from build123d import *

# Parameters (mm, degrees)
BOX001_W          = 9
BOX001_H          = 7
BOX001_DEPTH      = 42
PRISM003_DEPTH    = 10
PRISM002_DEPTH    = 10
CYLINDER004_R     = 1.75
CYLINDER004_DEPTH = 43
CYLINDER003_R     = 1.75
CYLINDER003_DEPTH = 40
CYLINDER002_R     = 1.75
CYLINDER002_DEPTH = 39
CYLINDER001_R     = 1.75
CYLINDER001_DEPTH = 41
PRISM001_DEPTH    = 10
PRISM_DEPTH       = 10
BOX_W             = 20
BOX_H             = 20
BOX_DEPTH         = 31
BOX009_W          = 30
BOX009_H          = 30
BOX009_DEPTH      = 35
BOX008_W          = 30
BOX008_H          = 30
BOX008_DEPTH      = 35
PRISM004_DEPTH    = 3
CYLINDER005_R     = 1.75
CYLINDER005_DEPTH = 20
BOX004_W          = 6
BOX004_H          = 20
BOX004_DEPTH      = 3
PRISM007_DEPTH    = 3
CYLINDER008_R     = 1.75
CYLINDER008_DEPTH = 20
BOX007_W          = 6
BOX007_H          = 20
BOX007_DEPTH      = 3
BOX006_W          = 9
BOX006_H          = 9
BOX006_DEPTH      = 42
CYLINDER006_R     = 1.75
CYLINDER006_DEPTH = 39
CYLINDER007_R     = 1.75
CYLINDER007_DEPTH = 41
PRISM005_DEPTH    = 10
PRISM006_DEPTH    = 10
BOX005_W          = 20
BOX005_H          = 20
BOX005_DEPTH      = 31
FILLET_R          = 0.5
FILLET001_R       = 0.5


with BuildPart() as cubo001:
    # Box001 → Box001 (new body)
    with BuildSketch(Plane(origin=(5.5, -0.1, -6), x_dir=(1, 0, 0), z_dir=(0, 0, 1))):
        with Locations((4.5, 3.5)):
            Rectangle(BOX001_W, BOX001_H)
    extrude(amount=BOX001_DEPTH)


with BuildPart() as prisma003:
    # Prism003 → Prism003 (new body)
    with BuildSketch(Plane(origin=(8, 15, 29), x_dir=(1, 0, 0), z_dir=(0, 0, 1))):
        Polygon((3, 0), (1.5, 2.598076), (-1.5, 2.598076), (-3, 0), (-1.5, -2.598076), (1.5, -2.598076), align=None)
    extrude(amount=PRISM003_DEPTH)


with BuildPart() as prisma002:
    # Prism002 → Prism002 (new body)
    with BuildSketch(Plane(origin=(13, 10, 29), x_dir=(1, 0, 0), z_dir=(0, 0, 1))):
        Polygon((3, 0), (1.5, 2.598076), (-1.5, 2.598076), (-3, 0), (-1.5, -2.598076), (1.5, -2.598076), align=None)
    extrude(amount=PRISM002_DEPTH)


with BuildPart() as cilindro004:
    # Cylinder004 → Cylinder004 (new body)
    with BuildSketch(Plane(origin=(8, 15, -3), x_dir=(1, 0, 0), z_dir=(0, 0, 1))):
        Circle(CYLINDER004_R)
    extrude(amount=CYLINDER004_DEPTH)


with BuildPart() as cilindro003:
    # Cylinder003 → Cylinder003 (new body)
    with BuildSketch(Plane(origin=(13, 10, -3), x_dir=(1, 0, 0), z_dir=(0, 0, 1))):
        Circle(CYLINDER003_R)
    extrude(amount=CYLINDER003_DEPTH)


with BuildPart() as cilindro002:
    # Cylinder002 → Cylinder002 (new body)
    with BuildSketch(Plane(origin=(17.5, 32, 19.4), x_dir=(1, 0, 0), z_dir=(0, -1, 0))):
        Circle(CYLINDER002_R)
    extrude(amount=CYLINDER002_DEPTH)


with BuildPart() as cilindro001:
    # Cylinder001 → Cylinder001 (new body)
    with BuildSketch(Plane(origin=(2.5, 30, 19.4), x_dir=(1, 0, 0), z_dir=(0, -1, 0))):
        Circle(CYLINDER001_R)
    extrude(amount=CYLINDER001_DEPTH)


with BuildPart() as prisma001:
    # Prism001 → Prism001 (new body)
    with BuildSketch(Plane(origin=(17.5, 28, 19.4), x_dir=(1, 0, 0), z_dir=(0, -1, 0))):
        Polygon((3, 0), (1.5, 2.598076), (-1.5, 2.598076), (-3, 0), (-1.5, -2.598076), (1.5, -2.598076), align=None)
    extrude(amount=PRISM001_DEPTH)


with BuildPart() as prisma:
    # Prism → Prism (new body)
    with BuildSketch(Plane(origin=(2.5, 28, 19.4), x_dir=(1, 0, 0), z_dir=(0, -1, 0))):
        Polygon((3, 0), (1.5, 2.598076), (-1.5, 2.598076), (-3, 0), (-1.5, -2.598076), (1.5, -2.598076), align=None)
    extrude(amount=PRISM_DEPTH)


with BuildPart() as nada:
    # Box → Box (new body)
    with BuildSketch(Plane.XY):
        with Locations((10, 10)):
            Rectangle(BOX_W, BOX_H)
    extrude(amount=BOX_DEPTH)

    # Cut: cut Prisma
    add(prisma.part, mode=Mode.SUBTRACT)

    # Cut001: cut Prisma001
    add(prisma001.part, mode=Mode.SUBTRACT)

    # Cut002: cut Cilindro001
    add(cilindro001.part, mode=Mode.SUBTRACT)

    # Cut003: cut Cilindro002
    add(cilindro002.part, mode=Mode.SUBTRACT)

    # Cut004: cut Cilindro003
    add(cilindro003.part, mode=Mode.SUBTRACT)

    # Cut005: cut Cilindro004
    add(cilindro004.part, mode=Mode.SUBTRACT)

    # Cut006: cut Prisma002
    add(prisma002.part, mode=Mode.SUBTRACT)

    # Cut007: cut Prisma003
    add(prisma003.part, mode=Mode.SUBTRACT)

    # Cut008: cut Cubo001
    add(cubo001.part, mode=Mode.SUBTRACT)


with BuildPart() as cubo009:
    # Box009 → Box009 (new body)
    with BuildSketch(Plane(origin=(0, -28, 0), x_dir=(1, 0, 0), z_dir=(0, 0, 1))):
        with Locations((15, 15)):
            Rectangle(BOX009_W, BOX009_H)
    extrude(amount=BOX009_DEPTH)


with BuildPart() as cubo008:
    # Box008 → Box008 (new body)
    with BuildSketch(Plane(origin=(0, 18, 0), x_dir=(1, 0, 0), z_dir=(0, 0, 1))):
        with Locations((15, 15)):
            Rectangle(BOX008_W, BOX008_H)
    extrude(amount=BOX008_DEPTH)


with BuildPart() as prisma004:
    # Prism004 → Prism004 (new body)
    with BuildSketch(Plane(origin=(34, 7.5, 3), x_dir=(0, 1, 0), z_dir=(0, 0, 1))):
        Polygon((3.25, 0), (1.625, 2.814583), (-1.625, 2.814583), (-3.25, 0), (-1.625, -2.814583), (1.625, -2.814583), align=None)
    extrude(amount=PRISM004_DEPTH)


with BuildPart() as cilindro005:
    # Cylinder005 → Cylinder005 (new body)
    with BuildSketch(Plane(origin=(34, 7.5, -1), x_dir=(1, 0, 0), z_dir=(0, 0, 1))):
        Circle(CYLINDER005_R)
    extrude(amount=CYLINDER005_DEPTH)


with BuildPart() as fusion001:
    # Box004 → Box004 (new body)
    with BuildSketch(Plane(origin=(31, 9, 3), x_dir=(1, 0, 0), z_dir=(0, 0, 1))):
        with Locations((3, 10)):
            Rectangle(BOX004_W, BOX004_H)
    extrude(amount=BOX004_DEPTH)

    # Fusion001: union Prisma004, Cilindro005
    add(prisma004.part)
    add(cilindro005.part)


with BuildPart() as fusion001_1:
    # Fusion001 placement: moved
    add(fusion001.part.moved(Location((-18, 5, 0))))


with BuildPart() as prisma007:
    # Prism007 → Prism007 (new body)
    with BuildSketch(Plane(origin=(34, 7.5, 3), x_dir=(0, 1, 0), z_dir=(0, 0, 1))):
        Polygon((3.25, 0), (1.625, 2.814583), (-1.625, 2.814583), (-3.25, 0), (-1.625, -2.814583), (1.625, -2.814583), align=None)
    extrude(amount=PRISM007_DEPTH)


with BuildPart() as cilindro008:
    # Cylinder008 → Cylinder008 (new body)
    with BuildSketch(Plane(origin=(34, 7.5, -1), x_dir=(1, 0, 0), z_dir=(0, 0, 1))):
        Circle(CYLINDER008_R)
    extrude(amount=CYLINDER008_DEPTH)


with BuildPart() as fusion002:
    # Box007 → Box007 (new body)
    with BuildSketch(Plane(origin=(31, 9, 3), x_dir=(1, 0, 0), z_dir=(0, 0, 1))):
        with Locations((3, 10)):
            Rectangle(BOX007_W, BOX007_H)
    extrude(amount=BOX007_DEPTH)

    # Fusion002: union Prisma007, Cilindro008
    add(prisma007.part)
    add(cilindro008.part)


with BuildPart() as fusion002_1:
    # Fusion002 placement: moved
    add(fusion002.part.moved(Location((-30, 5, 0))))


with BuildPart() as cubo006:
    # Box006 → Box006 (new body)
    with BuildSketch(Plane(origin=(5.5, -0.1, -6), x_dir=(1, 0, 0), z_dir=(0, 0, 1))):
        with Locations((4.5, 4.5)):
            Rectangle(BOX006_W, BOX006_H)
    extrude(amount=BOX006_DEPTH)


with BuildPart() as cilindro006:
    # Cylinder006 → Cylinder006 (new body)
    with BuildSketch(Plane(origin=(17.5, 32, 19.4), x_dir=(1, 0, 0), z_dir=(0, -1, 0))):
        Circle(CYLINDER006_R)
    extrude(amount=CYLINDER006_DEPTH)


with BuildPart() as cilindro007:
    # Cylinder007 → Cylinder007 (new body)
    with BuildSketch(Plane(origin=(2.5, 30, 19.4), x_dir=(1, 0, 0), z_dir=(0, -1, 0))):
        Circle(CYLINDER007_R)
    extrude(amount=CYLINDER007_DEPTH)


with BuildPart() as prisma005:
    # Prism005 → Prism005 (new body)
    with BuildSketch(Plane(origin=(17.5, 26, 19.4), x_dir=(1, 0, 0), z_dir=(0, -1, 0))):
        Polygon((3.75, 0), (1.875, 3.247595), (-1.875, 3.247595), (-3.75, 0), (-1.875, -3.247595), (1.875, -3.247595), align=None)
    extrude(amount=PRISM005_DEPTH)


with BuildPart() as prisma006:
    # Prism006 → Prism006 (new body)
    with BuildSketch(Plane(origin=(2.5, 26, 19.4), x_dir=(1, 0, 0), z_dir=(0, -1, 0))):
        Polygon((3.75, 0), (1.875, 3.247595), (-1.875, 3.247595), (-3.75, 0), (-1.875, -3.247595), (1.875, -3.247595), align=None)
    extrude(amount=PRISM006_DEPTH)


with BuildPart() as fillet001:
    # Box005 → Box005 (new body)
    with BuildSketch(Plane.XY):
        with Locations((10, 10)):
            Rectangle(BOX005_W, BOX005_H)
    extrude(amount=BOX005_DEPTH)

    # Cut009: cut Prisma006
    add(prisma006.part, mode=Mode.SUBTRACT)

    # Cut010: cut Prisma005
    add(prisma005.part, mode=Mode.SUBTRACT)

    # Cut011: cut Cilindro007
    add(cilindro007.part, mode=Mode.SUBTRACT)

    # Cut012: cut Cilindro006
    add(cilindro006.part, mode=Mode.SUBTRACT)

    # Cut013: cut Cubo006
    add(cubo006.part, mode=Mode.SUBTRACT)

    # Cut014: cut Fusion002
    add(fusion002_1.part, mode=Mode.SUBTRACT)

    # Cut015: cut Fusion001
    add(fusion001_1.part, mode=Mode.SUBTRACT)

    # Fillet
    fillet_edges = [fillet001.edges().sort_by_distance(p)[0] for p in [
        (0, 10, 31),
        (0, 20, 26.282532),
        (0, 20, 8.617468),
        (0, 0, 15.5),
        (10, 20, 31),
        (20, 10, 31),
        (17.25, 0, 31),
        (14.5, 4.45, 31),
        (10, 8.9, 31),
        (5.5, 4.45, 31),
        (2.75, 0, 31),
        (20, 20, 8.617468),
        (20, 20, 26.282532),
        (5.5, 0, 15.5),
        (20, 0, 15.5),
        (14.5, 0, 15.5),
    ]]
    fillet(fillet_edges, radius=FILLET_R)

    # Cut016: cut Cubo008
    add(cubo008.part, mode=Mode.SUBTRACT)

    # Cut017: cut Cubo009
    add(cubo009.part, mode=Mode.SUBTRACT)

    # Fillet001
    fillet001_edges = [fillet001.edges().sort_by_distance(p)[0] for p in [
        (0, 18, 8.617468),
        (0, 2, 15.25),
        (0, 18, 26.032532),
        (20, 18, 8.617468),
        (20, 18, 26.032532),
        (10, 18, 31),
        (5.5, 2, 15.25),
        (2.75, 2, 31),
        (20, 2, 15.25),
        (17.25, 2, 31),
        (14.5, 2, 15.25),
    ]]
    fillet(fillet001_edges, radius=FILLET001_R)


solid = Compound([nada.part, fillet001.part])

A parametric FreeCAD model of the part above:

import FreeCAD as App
import Part
import Sketcher
Q = App.Units.Quantity


def edges_at(feature, points):
    """Names of the edges that pass closest to the given points."""
    edges = feature.Shape.Edges
    near = lambda p: min(range(len(edges)), key=lambda i: edges[i].distToShape(Part.Vertex(*p))[0])
    return sorted({f"Edge{near(p) + 1}" for p in points})


def add_polygon(sketch, points):
    """Adds a closed chain of lines whose ends are joined by coincident constraints."""
    first, n = sketch.GeometryCount, len(points)
    for a, b in zip(points, points[1:] + points[:1]):
        sketch.addGeometry(Part.LineSegment(App.Vector(*a, 0), App.Vector(*b, 0)), False)
    for i in range(n):
        sketch.addConstraint(Sketcher.Constraint("Coincident", first + i, 2, first + (i + 1) % n, 1))

doc = App.newDocument("Part")
body = doc.addObject("PartDesign::Body", "Body")

sketch1 = doc.addObject("Sketcher::SketchObject", "Sketch")
body.addObject(sketch1)
sketch1.AttachmentSupport = (doc.XY_Plane, [""])
sketch1.MapMode = "FlatFace"
sketch1.AttachmentOffset = App.Placement(App.Vector(0, 0, -6), App.Rotation())
add_polygon(sketch1, [(6, 7), (6, 0), (14, 0), (14, 7)])
sketch1.addConstraint(Sketcher.Constraint("Vertical", 0))
sketch1.addConstraint(Sketcher.Constraint("Horizontal", 1))
sketch1.addConstraint(Sketcher.Constraint("Vertical", 2))
sketch1.addConstraint(Sketcher.Constraint("Horizontal", 3))
sketch1.addConstraint(Sketcher.Constraint("DistanceX", 1, 1, 1, 2, Q("9 mm")))
sketch1.addConstraint(Sketcher.Constraint("DistanceY", 0, 2, 0, 1, Q("7 mm")))
sketch1.addConstraint(Sketcher.Constraint("DistanceX", -1, 1, 0, 2, Q("5.5 mm")))
sketch1.addConstraint(Sketcher.Constraint("DistanceY", 0, 2, -1, 1, Q("0.1 mm")))
pad1 = doc.addObject("PartDesign::Pad", "Pad")
body.addObject(pad1)
pad1.Profile = sketch1
pad1.Length = 42
body2 = doc.addObject("PartDesign::Body", "Body001")

sketch2 = doc.addObject("Sketcher::SketchObject", "Sketch001")
body2.addObject(sketch2)
sketch2.AttachmentSupport = (doc.getObject("XY_Plane001"), [""])
sketch2.MapMode = "FlatFace"
sketch2.AttachmentOffset = App.Placement(App.Vector(0, 0, 29), App.Rotation())
add_polygon(sketch2, [(11, 15), (9.5, 17.6), (6.5, 17.6), (5, 15), (6.5, 12.4), (9.5, 12.4)])
sketch2.addConstraint(Sketcher.Constraint("Horizontal", 1))
sketch2.addConstraint(Sketcher.Constraint("Horizontal", 4))
sketch2.addConstraint(Sketcher.Constraint("Parallel", 0, 3))
sketch2.addConstraint(Sketcher.Constraint("Parallel", 2, 5))
sketch2.addConstraint(Sketcher.Constraint("Horizontal", 2, 2, 5, 2))
sketch2.addConstraint(Sketcher.Constraint("Vertical", 1, 2, 3, 2))
sketch2.addConstraint(Sketcher.Constraint("Vertical", 0, 2, 4, 2))
sketch2.addConstraint(Sketcher.Constraint("DistanceX", 1, 2, 1, 1, Q("3 mm")))
sketch2.addConstraint(Sketcher.Constraint("Angle", 0, Q("120.000002 deg")))
sketch2.addConstraint(Sketcher.Constraint("Distance", 0, Q("3 mm")))
sketch2.addConstraint(Sketcher.Constraint("DistanceX", -1, 1, 2, 2, Q("5 mm")))
sketch2.addConstraint(Sketcher.Constraint("DistanceY", -1, 1, 2, 2, Q("15 mm")))
pad2 = doc.addObject("PartDesign::Pad", "Pad001")
body2.addObject(pad2)
pad2.Profile = sketch2
pad2.Length = 10
body3 = doc.addObject("PartDesign::Body", "Body002")

sketch3 = doc.addObject("Sketcher::SketchObject", "Sketch002")
body3.addObject(sketch3)
sketch3.AttachmentSupport = (doc.getObject("XY_Plane002"), [""])
sketch3.MapMode = "FlatFace"
sketch3.AttachmentOffset = App.Placement(App.Vector(0, 0, 29), App.Rotation())
add_polygon(sketch3, [(16, 10), (14.5, 12.6), (11.5, 12.6), (10, 10), (11.5, 7.4), (14.5, 7.4)])
sketch3.addConstraint(Sketcher.Constraint("Horizontal", 1))
sketch3.addConstraint(Sketcher.Constraint("Horizontal", 4))
sketch3.addConstraint(Sketcher.Constraint("Parallel", 0, 3))
sketch3.addConstraint(Sketcher.Constraint("Parallel", 2, 5))
sketch3.addConstraint(Sketcher.Constraint("Horizontal", 2, 2, 5, 2))
sketch3.addConstraint(Sketcher.Constraint("Vertical", 1, 2, 3, 2))
sketch3.addConstraint(Sketcher.Constraint("Vertical", 0, 2, 4, 2))
sketch3.addConstraint(Sketcher.Constraint("DistanceX", 1, 2, 1, 1, Q("3 mm")))
sketch3.addConstraint(Sketcher.Constraint("Angle", 0, Q("120.000002 deg")))
sketch3.addConstraint(Sketcher.Constraint("Distance", 0, Q("3 mm")))
sketch3.addConstraint(Sketcher.Constraint("DistanceX", -1, 1, 2, 2, Q("10 mm")))
sketch3.addConstraint(Sketcher.Constraint("DistanceY", -1, 1, 2, 2, Q("10 mm")))
pad3 = doc.addObject("PartDesign::Pad", "Pad002")
body3.addObject(pad3)
pad3.Profile = sketch3
pad3.Length = 10
body4 = doc.addObject("PartDesign::Body", "Body003")

sketch4 = doc.addObject("Sketcher::SketchObject", "Sketch003")
body4.addObject(sketch4)
sketch4.AttachmentSupport = (doc.getObject("XY_Plane003"), [""])
sketch4.MapMode = "FlatFace"
sketch4.AttachmentOffset = App.Placement(App.Vector(0, 0, -3), App.Rotation())
sketch4.addGeometry(Part.Circle(App.Vector(8, 15, 0), App.Vector(0, 0, 1), 1.8), False)
sketch4.addConstraint(Sketcher.Constraint("Diameter", 0, Q("3.5 mm")))
sketch4.addConstraint(Sketcher.Constraint("DistanceX", -1, 1, 0, 3, Q("8 mm")))
sketch4.addConstraint(Sketcher.Constraint("DistanceY", -1, 1, 0, 3, Q("15 mm")))
pad4 = doc.addObject("PartDesign::Pad", "Pad003")
body4.addObject(pad4)
pad4.Profile = sketch4
pad4.Length = 43
body5 = doc.addObject("PartDesign::Body", "Body004")

sketch5 = doc.addObject("Sketcher::SketchObject", "Sketch004")
body5.addObject(sketch5)
sketch5.AttachmentSupport = (doc.getObject("XY_Plane004"), [""])
sketch5.MapMode = "FlatFace"
sketch5.AttachmentOffset = App.Placement(App.Vector(0, 0, -3), App.Rotation())
sketch5.addGeometry(Part.Circle(App.Vector(13, 10, 0), App.Vector(0, 0, 1), 1.8), False)
sketch5.addConstraint(Sketcher.Constraint("Diameter", 0, Q("3.5 mm")))
sketch5.addConstraint(Sketcher.Constraint("DistanceX", -1, 1, 0, 3, Q("13 mm")))
sketch5.addConstraint(Sketcher.Constraint("DistanceY", -1, 1, 0, 3, Q("10 mm")))
pad5 = doc.addObject("PartDesign::Pad", "Pad004")
body5.addObject(pad5)
pad5.Profile = sketch5
pad5.Length = 40
body6 = doc.addObject("PartDesign::Body", "Body005")

sketch6 = doc.addObject("Sketcher::SketchObject", "Sketch005")
body6.addObject(sketch6)
sketch6.AttachmentSupport = (doc.getObject("XZ_Plane005"), [""])
sketch6.MapMode = "FlatFace"
sketch6.AttachmentOffset = App.Placement(App.Vector(0, 0, -32), App.Rotation())
sketch6.addGeometry(Part.Circle(App.Vector(17.5, 19.4, 0), App.Vector(0, 0, 1), 1.8), False)
sketch6.addConstraint(Sketcher.Constraint("Diameter", 0, Q("3.5 mm")))
sketch6.addConstraint(Sketcher.Constraint("DistanceX", -1, 1, 0, 3, Q("17.5 mm")))
sketch6.addConstraint(Sketcher.Constraint("DistanceY", -1, 1, 0, 3, Q("19.4 mm")))
pad6 = doc.addObject("PartDesign::Pad", "Pad005")
body6.addObject(pad6)
pad6.Profile = sketch6
pad6.Length = 39
body7 = doc.addObject("PartDesign::Body", "Body006")

sketch7 = doc.addObject("Sketcher::SketchObject", "Sketch006")
body7.addObject(sketch7)
sketch7.AttachmentSupport = (doc.getObject("XZ_Plane006"), [""])
sketch7.MapMode = "FlatFace"
sketch7.AttachmentOffset = App.Placement(App.Vector(0, 0, -30), App.Rotation())
sketch7.addGeometry(Part.Circle(App.Vector(2.5, 19.4, 0), App.Vector(0, 0, 1), 1.8), False)
sketch7.addConstraint(Sketcher.Constraint("Diameter", 0, Q("3.5 mm")))
sketch7.addConstraint(Sketcher.Constraint("DistanceX", -1, 1, 0, 3, Q("2.5 mm")))
sketch7.addConstraint(Sketcher.Constraint("DistanceY", -1, 1, 0, 3, Q("19.4 mm")))
pad7 = doc.addObject("PartDesign::Pad", "Pad006")
body7.addObject(pad7)
pad7.Profile = sketch7
pad7.Length = 41
body8 = doc.addObject("PartDesign::Body", "Body007")

sketch8 = doc.addObject("Sketcher::SketchObject", "Sketch007")
body8.addObject(sketch8)
sketch8.AttachmentSupport = (doc.getObject("XZ_Plane007"), [""])
sketch8.MapMode = "FlatFace"
sketch8.AttachmentOffset = App.Placement(App.Vector(0, 0, -28), App.Rotation())
add_polygon(sketch8, [(20.5, 19.4), (19, 22), (16, 22), (14.5, 19.4), (16, 16.8), (19, 16.8)])
sketch8.addConstraint(Sketcher.Constraint("Horizontal", 1))
sketch8.addConstraint(Sketcher.Constraint("Horizontal", 4))
sketch8.addConstraint(Sketcher.Constraint("Parallel", 0, 3))
sketch8.addConstraint(Sketcher.Constraint("Parallel", 2, 5))
sketch8.addConstraint(Sketcher.Constraint("Horizontal", 2, 2, 5, 2))
sketch8.addConstraint(Sketcher.Constraint("Vertical", 1, 2, 3, 2))
sketch8.addConstraint(Sketcher.Constraint("Vertical", 0, 2, 4, 2))
sketch8.addConstraint(Sketcher.Constraint("DistanceX", 1, 2, 1, 1, Q("3 mm")))
sketch8.addConstraint(Sketcher.Constraint("Angle", 0, Q("120.000002 deg")))
sketch8.addConstraint(Sketcher.Constraint("Distance", 0, Q("3 mm")))
sketch8.addConstraint(Sketcher.Constraint("DistanceX", -1, 1, 0, 2, Q("19 mm")))
sketch8.addConstraint(Sketcher.Constraint("DistanceY", -1, 1, 2, 2, Q("19.4 mm")))
pad8 = doc.addObject("PartDesign::Pad", "Pad007")
body8.addObject(pad8)
pad8.Profile = sketch8
pad8.Length = 10
body9 = doc.addObject("PartDesign::Body", "Body008")

sketch9 = doc.addObject("Sketcher::SketchObject", "Sketch008")
body9.addObject(sketch9)
sketch9.AttachmentSupport = (doc.getObject("XZ_Plane008"), [""])
sketch9.MapMode = "FlatFace"
sketch9.AttachmentOffset = App.Placement(App.Vector(0, 0, -28), App.Rotation())
add_polygon(sketch9, [(5.5, 19.4), (4, 22), (1, 22), (-0.5, 19.4), (1, 16.8), (4, 16.8)])
sketch9.addConstraint(Sketcher.Constraint("Horizontal", 1))
sketch9.addConstraint(Sketcher.Constraint("Horizontal", 4))
sketch9.addConstraint(Sketcher.Constraint("Parallel", 0, 3))
sketch9.addConstraint(Sketcher.Constraint("Parallel", 2, 5))
sketch9.addConstraint(Sketcher.Constraint("Horizontal", 2, 2, 5, 2))
sketch9.addConstraint(Sketcher.Constraint("Vertical", 1, 2, 3, 2))
sketch9.addConstraint(Sketcher.Constraint("Vertical", 0, 2, 4, 2))
sketch9.addConstraint(Sketcher.Constraint("DistanceX", 1, 2, 1, 1, Q("3 mm")))
sketch9.addConstraint(Sketcher.Constraint("Angle", 0, Q("120.000002 deg")))
sketch9.addConstraint(Sketcher.Constraint("Distance", 0, Q("3 mm")))
sketch9.addConstraint(Sketcher.Constraint("DistanceX", -1, 1, 0, 2, Q("4 mm")))
sketch9.addConstraint(Sketcher.Constraint("DistanceY", -1, 1, 2, 2, Q("19.4 mm")))
pad9 = doc.addObject("PartDesign::Pad", "Pad008")
body9.addObject(pad9)
pad9.Profile = sketch9
pad9.Length = 10
body10 = doc.addObject("PartDesign::Body", "Body009")

sketch10 = doc.addObject("Sketcher::SketchObject", "Sketch009")
body10.addObject(sketch10)
sketch10.AttachmentSupport = (doc.getObject("XY_Plane009"), [""])
sketch10.MapMode = "FlatFace"
add_polygon(sketch10, [(0, 20), (0, 0), (20, 0), (20, 20)])
sketch10.addConstraint(Sketcher.Constraint("Vertical", 0))
sketch10.addConstraint(Sketcher.Constraint("Horizontal", 1))
sketch10.addConstraint(Sketcher.Constraint("Vertical", 2))
sketch10.addConstraint(Sketcher.Constraint("Horizontal", 3))
sketch10.addConstraint(Sketcher.Constraint("Coincident", 0, 2, -1, 1))
sketch10.addConstraint(Sketcher.Constraint("Equal", 3, 0))
sketch10.addConstraint(Sketcher.Constraint("DistanceX", 1, 1, 1, 2, Q("20 mm")))
pad10 = doc.addObject("PartDesign::Pad", "Pad009")
body10.addObject(pad10)
pad10.Profile = sketch10
pad10.Length = 31
doc.recompute()

boolean = doc.addObject("PartDesign::Boolean", "Boolean")
body10.addObject(boolean)
boolean.Type = "Cut"
boolean.addObjects([body9])
doc.recompute()

boolean2 = doc.addObject("PartDesign::Boolean", "Boolean001")
body10.addObject(boolean2)
boolean2.Type = "Cut"
boolean2.addObjects([body8])
doc.recompute()

boolean3 = doc.addObject("PartDesign::Boolean", "Boolean002")
body10.addObject(boolean3)
boolean3.Type = "Cut"
boolean3.addObjects([body7])
doc.recompute()

boolean4 = doc.addObject("PartDesign::Boolean", "Boolean003")
body10.addObject(boolean4)
boolean4.Type = "Cut"
boolean4.addObjects([body6])
doc.recompute()

boolean5 = doc.addObject("PartDesign::Boolean", "Boolean004")
body10.addObject(boolean5)
boolean5.Type = "Cut"
boolean5.addObjects([body5])
doc.recompute()

boolean6 = doc.addObject("PartDesign::Boolean", "Boolean005")
body10.addObject(boolean6)
boolean6.Type = "Cut"
boolean6.addObjects([body4])
doc.recompute()

boolean7 = doc.addObject("PartDesign::Boolean", "Boolean006")
body10.addObject(boolean7)
boolean7.Type = "Cut"
boolean7.addObjects([body3])
doc.recompute()

boolean8 = doc.addObject("PartDesign::Boolean", "Boolean007")
body10.addObject(boolean8)
boolean8.Type = "Cut"
boolean8.addObjects([body2])
doc.recompute()

boolean9 = doc.addObject("PartDesign::Boolean", "Boolean008")
body10.addObject(boolean9)
boolean9.Type = "Cut"
boolean9.addObjects([body])
body11 = doc.addObject("PartDesign::Body", "Body010")

sketch11 = doc.addObject("Sketcher::SketchObject", "Sketch010")
body11.addObject(sketch11)
sketch11.AttachmentSupport = (doc.getObject("XY_Plane010"), [""])
sketch11.MapMode = "FlatFace"
add_polygon(sketch11, [(0, 2), (0, -28), (30, -28), (30, 2)])
sketch11.addConstraint(Sketcher.Constraint("Vertical", 0))
sketch11.addConstraint(Sketcher.Constraint("Horizontal", 1))
sketch11.addConstraint(Sketcher.Constraint("Vertical", 2))
sketch11.addConstraint(Sketcher.Constraint("Horizontal", 3))
sketch11.addConstraint(Sketcher.Constraint("PointOnObject", 0, 2, -2))
sketch11.addConstraint(Sketcher.Constraint("Equal", 3, 0))
sketch11.addConstraint(Sketcher.Constraint("DistanceX", 1, 1, 1, 2, Q("30 mm")))
sketch11.addConstraint(Sketcher.Constraint("DistanceY", 0, 2, -1, 1, Q("28 mm")))
pad11 = doc.addObject("PartDesign::Pad", "Pad010")
body11.addObject(pad11)
pad11.Profile = sketch11
pad11.Length = 35
body12 = doc.addObject("PartDesign::Body", "Body011")

sketch12 = doc.addObject("Sketcher::SketchObject", "Sketch011")
body12.addObject(sketch12)
sketch12.AttachmentSupport = (doc.getObject("XY_Plane011"), [""])
sketch12.MapMode = "FlatFace"
add_polygon(sketch12, [(0, 48), (0, 18), (30, 18), (30, 48)])
sketch12.addConstraint(Sketcher.Constraint("Vertical", 0))
sketch12.addConstraint(Sketcher.Constraint("Horizontal", 1))
sketch12.addConstraint(Sketcher.Constraint("Vertical", 2))
sketch12.addConstraint(Sketcher.Constraint("Horizontal", 3))
sketch12.addConstraint(Sketcher.Constraint("PointOnObject", 0, 2, -2))
sketch12.addConstraint(Sketcher.Constraint("Equal", 3, 0))
sketch12.addConstraint(Sketcher.Constraint("DistanceX", 1, 1, 1, 2, Q("30 mm")))
sketch12.addConstraint(Sketcher.Constraint("DistanceY", -1, 1, 0, 2, Q("18 mm")))
pad12 = doc.addObject("PartDesign::Pad", "Pad011")
body12.addObject(pad12)
pad12.Profile = sketch12
pad12.Length = 35
body13 = doc.addObject("PartDesign::Body", "Body012")

sketch13 = doc.addObject("Sketcher::SketchObject", "Sketch012")
body13.addObject(sketch13)
sketch13.AttachmentSupport = (doc.getObject("XY_Plane012"), [""])
sketch13.MapMode = "FlatFace"
sketch13.AttachmentOffset = App.Placement(App.Vector(0, 0, 3), App.Rotation())
add_polygon(sketch13, [(34, 10.8), (31.2, 9.1), (31.2, 5.9), (34, 4.2), (36.8, 5.9), (36.8, 9.1)])
sketch13.addConstraint(Sketcher.Constraint("Vertical", 1))
sketch13.addConstraint(Sketcher.Constraint("Vertical", 4))
sketch13.addConstraint(Sketcher.Constraint("Parallel", 0, 3))
sketch13.addConstraint(Sketcher.Constraint("Parallel", 2, 5))
sketch13.addConstraint(Sketcher.Constraint("Horizontal", 1, 2, 3, 2))
sketch13.addConstraint(Sketcher.Constraint("Horizontal", 0, 2, 4, 2))
sketch13.addConstraint(Sketcher.Constraint("Vertical", 2, 2, 5, 2))
sketch13.addConstraint(Sketcher.Constraint("Angle", 0, Q("-150.000004 deg")))
sketch13.addConstraint(Sketcher.Constraint("DistanceX", -1, 1, 2, 2, Q("34 mm")))
sketch13.addConstraint(Sketcher.Constraint("DistanceY", 1, 2, 1, 1, Q("3.25 mm")))
sketch13.addConstraint(Sketcher.Constraint("DistanceY", 2, 2, 5, 2, Q("6.5 mm")))
sketch13.addConstraint(Sketcher.Constraint("DistanceY", -1, 1, 2, 2, Q("4.25 mm")))
pad13 = doc.addObject("PartDesign::Pad", "Pad012")
body13.addObject(pad13)
pad13.Profile = sketch13
pad13.Length = 3
body14 = doc.addObject("PartDesign::Body", "Body013")

sketch14 = doc.addObject("Sketcher::SketchObject", "Sketch013")
body14.addObject(sketch14)
sketch14.AttachmentSupport = (doc.getObject("XY_Plane013"), [""])
sketch14.MapMode = "FlatFace"
sketch14.AttachmentOffset = App.Placement(App.Vector(0, 0, -1), App.Rotation())
sketch14.addGeometry(Part.Circle(App.Vector(34, 7.5, 0), App.Vector(0, 0, 1), 1.8), False)
sketch14.addConstraint(Sketcher.Constraint("Diameter", 0, Q("3.5 mm")))
sketch14.addConstraint(Sketcher.Constraint("DistanceX", -1, 1, 0, 3, Q("34 mm")))
sketch14.addConstraint(Sketcher.Constraint("DistanceY", -1, 1, 0, 3, Q("7.5 mm")))
pad14 = doc.addObject("PartDesign::Pad", "Pad013")
body14.addObject(pad14)
pad14.Profile = sketch14
pad14.Length = 20
body15 = doc.addObject("PartDesign::Body", "Body014")

sketch15 = doc.addObject("Sketcher::SketchObject", "Sketch014")
body15.addObject(sketch15)
sketch15.AttachmentSupport = (doc.getObject("XY_Plane014"), [""])
sketch15.MapMode = "FlatFace"
sketch15.AttachmentOffset = App.Placement(App.Vector(0, 0, 3), App.Rotation())
add_polygon(sketch15, [(31, 29), (31, 9), (37, 9), (37, 29)])
sketch15.addConstraint(Sketcher.Constraint("Vertical", 0))
sketch15.addConstraint(Sketcher.Constraint("Horizontal", 1))
sketch15.addConstraint(Sketcher.Constraint("Vertical", 2))
sketch15.addConstraint(Sketcher.Constraint("Horizontal", 3))
sketch15.addConstraint(Sketcher.Constraint("DistanceX", 1, 1, 1, 2, Q("6 mm")))
sketch15.addConstraint(Sketcher.Constraint("DistanceY", 0, 2, 0, 1, Q("20 mm")))
sketch15.addConstraint(Sketcher.Constraint("DistanceX", -1, 1, 0, 2, Q("31 mm")))
sketch15.addConstraint(Sketcher.Constraint("DistanceY", -1, 1, 0, 2, Q("9 mm")))
pad15 = doc.addObject("PartDesign::Pad", "Pad014")
body15.addObject(pad15)
pad15.Profile = sketch15
pad15.Length = 3
doc.recompute()

boolean10 = doc.addObject("PartDesign::Boolean", "Boolean009")
body15.addObject(boolean10)
boolean10.Type = "Fuse"
boolean10.addObjects([body13])
doc.recompute()

boolean11 = doc.addObject("PartDesign::Boolean", "Boolean010")
body15.addObject(boolean11)
boolean11.Type = "Fuse"
boolean11.addObjects([body14])
body16 = doc.addObject("PartDesign::Body", "Body015")
doc.recompute()

body15.Placement = App.Placement(App.Vector(-18, 5, 0), App.Rotation(App.Vector(0, 0, 1), 0))
boolean12 = doc.addObject("PartDesign::Boolean", "Boolean011")
body16.addObject(boolean12)
boolean12.Type = "Fuse"
boolean12.addObjects([body15])
body17 = doc.addObject("PartDesign::Body", "Body016")

sketch16 = doc.addObject("Sketcher::SketchObject", "Sketch015")
body17.addObject(sketch16)
sketch16.AttachmentSupport = (doc.getObject("XY_Plane016"), [""])
sketch16.MapMode = "FlatFace"
sketch16.AttachmentOffset = App.Placement(App.Vector(0, 0, 3), App.Rotation())
add_polygon(sketch16, [(34, 10.8), (31.2, 9.1), (31.2, 5.9), (34, 4.2), (36.8, 5.9), (36.8, 9.1)])
sketch16.addConstraint(Sketcher.Constraint("Vertical", 1))
sketch16.addConstraint(Sketcher.Constraint("Vertical", 4))
sketch16.addConstraint(Sketcher.Constraint("Parallel", 0, 3))
sketch16.addConstraint(Sketcher.Constraint("Parallel", 2, 5))
sketch16.addConstraint(Sketcher.Constraint("Horizontal", 1, 2, 3, 2))
sketch16.addConstraint(Sketcher.Constraint("Horizontal", 0, 2, 4, 2))
sketch16.addConstraint(Sketcher.Constraint("Vertical", 2, 2, 5, 2))
sketch16.addConstraint(Sketcher.Constraint("Angle", 0, Q("-150.000004 deg")))
sketch16.addConstraint(Sketcher.Constraint("DistanceX", -1, 1, 2, 2, Q("34 mm")))
sketch16.addConstraint(Sketcher.Constraint("DistanceY", 1, 2, 1, 1, Q("3.25 mm")))
sketch16.addConstraint(Sketcher.Constraint("DistanceY", 2, 2, 5, 2, Q("6.5 mm")))
sketch16.addConstraint(Sketcher.Constraint("DistanceY", -1, 1, 2, 2, Q("4.25 mm")))
pad16 = doc.addObject("PartDesign::Pad", "Pad015")
body17.addObject(pad16)
pad16.Profile = sketch16
pad16.Length = 3
body18 = doc.addObject("PartDesign::Body", "Body017")

sketch17 = doc.addObject("Sketcher::SketchObject", "Sketch016")
body18.addObject(sketch17)
sketch17.AttachmentSupport = (doc.getObject("XY_Plane017"), [""])
sketch17.MapMode = "FlatFace"
sketch17.AttachmentOffset = App.Placement(App.Vector(0, 0, -1), App.Rotation())
sketch17.addGeometry(Part.Circle(App.Vector(34, 7.5, 0), App.Vector(0, 0, 1), 1.8), False)
sketch17.addConstraint(Sketcher.Constraint("Diameter", 0, Q("3.5 mm")))
sketch17.addConstraint(Sketcher.Constraint("DistanceX", -1, 1, 0, 3, Q("34 mm")))
sketch17.addConstraint(Sketcher.Constraint("DistanceY", -1, 1, 0, 3, Q("7.5 mm")))
pad17 = doc.addObject("PartDesign::Pad", "Pad016")
body18.addObject(pad17)
pad17.Profile = sketch17
pad17.Length = 20
body19 = doc.addObject("PartDesign::Body", "Body018")

sketch18 = doc.addObject("Sketcher::SketchObject", "Sketch017")
body19.addObject(sketch18)
sketch18.AttachmentSupport = (doc.getObject("XY_Plane018"), [""])
sketch18.MapMode = "FlatFace"
sketch18.AttachmentOffset = App.Placement(App.Vector(0, 0, 3), App.Rotation())
add_polygon(sketch18, [(31, 29), (31, 9), (37, 9), (37, 29)])
sketch18.addConstraint(Sketcher.Constraint("Vertical", 0))
sketch18.addConstraint(Sketcher.Constraint("Horizontal", 1))
sketch18.addConstraint(Sketcher.Constraint("Vertical", 2))
sketch18.addConstraint(Sketcher.Constraint("Horizontal", 3))
sketch18.addConstraint(Sketcher.Constraint("DistanceX", 1, 1, 1, 2, Q("6 mm")))
sketch18.addConstraint(Sketcher.Constraint("DistanceY", 0, 2, 0, 1, Q("20 mm")))
sketch18.addConstraint(Sketcher.Constraint("DistanceX", -1, 1, 0, 2, Q("31 mm")))
sketch18.addConstraint(Sketcher.Constraint("DistanceY", -1, 1, 0, 2, Q("9 mm")))
pad18 = doc.addObject("PartDesign::Pad", "Pad017")
body19.addObject(pad18)
pad18.Profile = sketch18
pad18.Length = 3
doc.recompute()

boolean13 = doc.addObject("PartDesign::Boolean", "Boolean012")
body19.addObject(boolean13)
boolean13.Type = "Fuse"
boolean13.addObjects([body17])
doc.recompute()

boolean14 = doc.addObject("PartDesign::Boolean", "Boolean013")
body19.addObject(boolean14)
boolean14.Type = "Fuse"
boolean14.addObjects([body18])
body20 = doc.addObject("PartDesign::Body", "Body019")
doc.recompute()

body19.Placement = App.Placement(App.Vector(-30, 5, 0), App.Rotation(App.Vector(0, 0, 1), 0))
boolean15 = doc.addObject("PartDesign::Boolean", "Boolean014")
body20.addObject(boolean15)
boolean15.Type = "Fuse"
boolean15.addObjects([body19])
body21 = doc.addObject("PartDesign::Body", "Body020")

sketch19 = doc.addObject("Sketcher::SketchObject", "Sketch018")
body21.addObject(sketch19)
sketch19.AttachmentSupport = (doc.getObject("XY_Plane020"), [""])
sketch19.MapMode = "FlatFace"
sketch19.AttachmentOffset = App.Placement(App.Vector(0, 0, -6), App.Rotation())
add_polygon(sketch19, [(6, 9), (6, 0), (14, 0), (14, 9)])
sketch19.addConstraint(Sketcher.Constraint("Vertical", 0))
sketch19.addConstraint(Sketcher.Constraint("Horizontal", 1))
sketch19.addConstraint(Sketcher.Constraint("Vertical", 2))
sketch19.addConstraint(Sketcher.Constraint("Horizontal", 3))
sketch19.addConstraint(Sketcher.Constraint("Equal", 3, 0))
sketch19.addConstraint(Sketcher.Constraint("DistanceX", 1, 1, 1, 2, Q("9 mm")))
sketch19.addConstraint(Sketcher.Constraint("DistanceX", -1, 1, 0, 2, Q("5.5 mm")))
sketch19.addConstraint(Sketcher.Constraint("DistanceY", 0, 2, -1, 1, Q("0.1 mm")))
pad19 = doc.addObject("PartDesign::Pad", "Pad018")
body21.addObject(pad19)
pad19.Profile = sketch19
pad19.Length = 42
body22 = doc.addObject("PartDesign::Body", "Body021")

sketch20 = doc.addObject("Sketcher::SketchObject", "Sketch019")
body22.addObject(sketch20)
sketch20.AttachmentSupport = (doc.getObject("XZ_Plane021"), [""])
sketch20.MapMode = "FlatFace"
sketch20.AttachmentOffset = App.Placement(App.Vector(0, 0, -32), App.Rotation())
sketch20.addGeometry(Part.Circle(App.Vector(17.5, 19.4, 0), App.Vector(0, 0, 1), 1.8), False)
sketch20.addConstraint(Sketcher.Constraint("Diameter", 0, Q("3.5 mm")))
sketch20.addConstraint(Sketcher.Constraint("DistanceX", -1, 1, 0, 3, Q("17.5 mm")))
sketch20.addConstraint(Sketcher.Constraint("DistanceY", -1, 1, 0, 3, Q("19.4 mm")))
pad20 = doc.addObject("PartDesign::Pad", "Pad019")
body22.addObject(pad20)
pad20.Profile = sketch20
pad20.Length = 39
body23 = doc.addObject("PartDesign::Body", "Body022")

sketch21 = doc.addObject("Sketcher::SketchObject", "Sketch020")
body23.addObject(sketch21)
sketch21.AttachmentSupport = (doc.getObject("XZ_Plane022"), [""])
sketch21.MapMode = "FlatFace"
sketch21.AttachmentOffset = App.Placement(App.Vector(0, 0, -30), App.Rotation())
sketch21.addGeometry(Part.Circle(App.Vector(2.5, 19.4, 0), App.Vector(0, 0, 1), 1.8), False)
sketch21.addConstraint(Sketcher.Constraint("Diameter", 0, Q("3.5 mm")))
sketch21.addConstraint(Sketcher.Constraint("DistanceX", -1, 1, 0, 3, Q("2.5 mm")))
sketch21.addConstraint(Sketcher.Constraint("DistanceY", -1, 1, 0, 3, Q("19.4 mm")))
pad21 = doc.addObject("PartDesign::Pad", "Pad020")
body23.addObject(pad21)
pad21.Profile = sketch21
pad21.Length = 41
body24 = doc.addObject("PartDesign::Body", "Body023")

sketch22 = doc.addObject("Sketcher::SketchObject", "Sketch021")
body24.addObject(sketch22)
sketch22.AttachmentSupport = (doc.getObject("XZ_Plane023"), [""])
sketch22.MapMode = "FlatFace"
sketch22.AttachmentOffset = App.Placement(App.Vector(0, 0, -26), App.Rotation())
add_polygon(sketch22, [(21.2, 19.4), (19.4, 22.6), (15.6, 22.6), (13.8, 19.4), (15.6, 16.2), (19.4, 16.2)])
sketch22.addConstraint(Sketcher.Constraint("Horizontal", 1))
sketch22.addConstraint(Sketcher.Constraint("Horizontal", 4))
sketch22.addConstraint(Sketcher.Constraint("Parallel", 0, 3))
sketch22.addConstraint(Sketcher.Constraint("Parallel", 2, 5))
sketch22.addConstraint(Sketcher.Constraint("Horizontal", 2, 2, 5, 2))
sketch22.addConstraint(Sketcher.Constraint("Vertical", 1, 2, 3, 2))
sketch22.addConstraint(Sketcher.Constraint("Vertical", 0, 2, 4, 2))
sketch22.addConstraint(Sketcher.Constraint("Angle", 0, Q("120.000002 deg")))
sketch22.addConstraint(Sketcher.Constraint("DistanceX", 1, 2, 1, 1, Q("3.75 mm")))
sketch22.addConstraint(Sketcher.Constraint("DistanceY", -1, 1, 2, 2, Q("19.4 mm")))
sketch22.addConstraint(Sketcher.Constraint("DistanceX", 2, 2, 5, 2, Q("7.5 mm")))
sketch22.addConstraint(Sketcher.Constraint("DistanceX", -1, 1, 2, 2, Q("13.75 mm")))
pad22 = doc.addObject("PartDesign::Pad", "Pad021")
body24.addObject(pad22)
pad22.Profile = sketch22
pad22.Length = 10
body25 = doc.addObject("PartDesign::Body", "Body024")

sketch23 = doc.addObject("Sketcher::SketchObject", "Sketch022")
body25.addObject(sketch23)
sketch23.AttachmentSupport = (doc.getObject("XZ_Plane024"), [""])
sketch23.MapMode = "FlatFace"
sketch23.AttachmentOffset = App.Placement(App.Vector(0, 0, -26), App.Rotation())
add_polygon(sketch23, [(6.2, 19.4), (4.4, 22.6), (0.6, 22.6), (-1.2, 19.4), (0.6, 16.2), (4.4, 16.2)])
sketch23.addConstraint(Sketcher.Constraint("Horizontal", 1))
sketch23.addConstraint(Sketcher.Constraint("Horizontal", 4))
sketch23.addConstraint(Sketcher.Constraint("Parallel", 0, 3))
sketch23.addConstraint(Sketcher.Constraint("Parallel", 2, 5))
sketch23.addConstraint(Sketcher.Constraint("Horizontal", 2, 2, 5, 2))
sketch23.addConstraint(Sketcher.Constraint("Vertical", 1, 2, 3, 2))
sketch23.addConstraint(Sketcher.Constraint("Vertical", 0, 2, 4, 2))
sketch23.addConstraint(Sketcher.Constraint("Angle", 0, Q("120.000002 deg")))
sketch23.addConstraint(Sketcher.Constraint("DistanceX", 1, 2, 1, 1, Q("3.75 mm")))
sketch23.addConstraint(Sketcher.Constraint("DistanceY", -1, 1, 2, 2, Q("19.4 mm")))
sketch23.addConstraint(Sketcher.Constraint("DistanceX", 2, 2, 5, 2, Q("7.5 mm")))
sketch23.addConstraint(Sketcher.Constraint("DistanceX", 2, 2, -1, 1, Q("1.25 mm")))
pad23 = doc.addObject("PartDesign::Pad", "Pad022")
body25.addObject(pad23)
pad23.Profile = sketch23
pad23.Length = 10
body26 = doc.addObject("PartDesign::Body", "Body025")

sketch24 = doc.addObject("Sketcher::SketchObject", "Sketch023")
body26.addObject(sketch24)
sketch24.AttachmentSupport = (doc.getObject("XY_Plane025"), [""])
sketch24.MapMode = "FlatFace"
add_polygon(sketch24, [(0, 20), (0, 0), (20, 0), (20, 20)])
sketch24.addConstraint(Sketcher.Constraint("Vertical", 0))
sketch24.addConstraint(Sketcher.Constraint("Horizontal", 1))
sketch24.addConstraint(Sketcher.Constraint("Vertical", 2))
sketch24.addConstraint(Sketcher.Constraint("Horizontal", 3))
sketch24.addConstraint(Sketcher.Constraint("Coincident", 0, 2, -1, 1))
sketch24.addConstraint(Sketcher.Constraint("Equal", 3, 0))
sketch24.addConstraint(Sketcher.Constraint("DistanceX", 1, 1, 1, 2, Q("20 mm")))
pad24 = doc.addObject("PartDesign::Pad", "Pad023")
body26.addObject(pad24)
pad24.Profile = sketch24
pad24.Length = 31
doc.recompute()

boolean16 = doc.addObject("PartDesign::Boolean", "Boolean015")
body26.addObject(boolean16)
boolean16.Type = "Cut"
boolean16.addObjects([body25])
doc.recompute()

boolean17 = doc.addObject("PartDesign::Boolean", "Boolean016")
body26.addObject(boolean17)
boolean17.Type = "Cut"
boolean17.addObjects([body24])
doc.recompute()

boolean18 = doc.addObject("PartDesign::Boolean", "Boolean017")
body26.addObject(boolean18)
boolean18.Type = "Cut"
boolean18.addObjects([body23])
doc.recompute()

boolean19 = doc.addObject("PartDesign::Boolean", "Boolean018")
body26.addObject(boolean19)
boolean19.Type = "Cut"
boolean19.addObjects([body22])
doc.recompute()

boolean20 = doc.addObject("PartDesign::Boolean", "Boolean019")
body26.addObject(boolean20)
boolean20.Type = "Cut"
boolean20.addObjects([body21])
doc.recompute()

boolean21 = doc.addObject("PartDesign::Boolean", "Boolean020")
body26.addObject(boolean21)
boolean21.Type = "Cut"
boolean21.addObjects([body20])
doc.recompute()

boolean22 = doc.addObject("PartDesign::Boolean", "Boolean021")
body26.addObject(boolean22)
boolean22.Type = "Cut"
boolean22.addObjects([body16])
doc.recompute()

fillet = doc.addObject("PartDesign::Fillet", "Fillet")
body26.addObject(fillet)
fillet.Base = (boolean22, edges_at(boolean22, [
    (0, 10, 31),
    (0, 20, 26.283),
    (0, 20, 8.617),
    (0, 0, 15.5),
    (10, 20, 31),
    (20, 10, 31),
    (17.25, 0, 31),
    (14.5, 4.45, 31),
    (10, 8.9, 31),
    (5.5, 4.45, 31),
    (2.75, 0, 31),
    (20, 20, 8.617),
    (20, 20, 26.283),
    (5.5, 0, 15.5),
    (20, 0, 15.5),
    (14.5, 0, 15.5),
]))
fillet.Radius = 0.5
doc.recompute()

boolean23 = doc.addObject("PartDesign::Boolean", "Boolean022")
body26.addObject(boolean23)
boolean23.Type = "Cut"
boolean23.addObjects([body12])
doc.recompute()

boolean24 = doc.addObject("PartDesign::Boolean", "Boolean023")
body26.addObject(boolean24)
boolean24.Type = "Cut"
boolean24.addObjects([body11])
doc.recompute()

fillet2 = doc.addObject("PartDesign::Fillet", "Fillet001")
body26.addObject(fillet2)
fillet2.Base = (boolean24, edges_at(boolean24, [
    (0, 18, 8.617),
    (0, 2, 15.25),
    (0, 18, 26.033),
    (20, 18, 8.617),
    (20, 18, 26.033),
    (10, 18, 31),
    (5.5, 2, 15.25),
    (2.75, 2, 31),
    (20, 2, 15.25),
    (17.25, 2, 31),
    (14.5, 2, 15.25),
]))
fillet2.Radius = 0.5

doc.recompute()
